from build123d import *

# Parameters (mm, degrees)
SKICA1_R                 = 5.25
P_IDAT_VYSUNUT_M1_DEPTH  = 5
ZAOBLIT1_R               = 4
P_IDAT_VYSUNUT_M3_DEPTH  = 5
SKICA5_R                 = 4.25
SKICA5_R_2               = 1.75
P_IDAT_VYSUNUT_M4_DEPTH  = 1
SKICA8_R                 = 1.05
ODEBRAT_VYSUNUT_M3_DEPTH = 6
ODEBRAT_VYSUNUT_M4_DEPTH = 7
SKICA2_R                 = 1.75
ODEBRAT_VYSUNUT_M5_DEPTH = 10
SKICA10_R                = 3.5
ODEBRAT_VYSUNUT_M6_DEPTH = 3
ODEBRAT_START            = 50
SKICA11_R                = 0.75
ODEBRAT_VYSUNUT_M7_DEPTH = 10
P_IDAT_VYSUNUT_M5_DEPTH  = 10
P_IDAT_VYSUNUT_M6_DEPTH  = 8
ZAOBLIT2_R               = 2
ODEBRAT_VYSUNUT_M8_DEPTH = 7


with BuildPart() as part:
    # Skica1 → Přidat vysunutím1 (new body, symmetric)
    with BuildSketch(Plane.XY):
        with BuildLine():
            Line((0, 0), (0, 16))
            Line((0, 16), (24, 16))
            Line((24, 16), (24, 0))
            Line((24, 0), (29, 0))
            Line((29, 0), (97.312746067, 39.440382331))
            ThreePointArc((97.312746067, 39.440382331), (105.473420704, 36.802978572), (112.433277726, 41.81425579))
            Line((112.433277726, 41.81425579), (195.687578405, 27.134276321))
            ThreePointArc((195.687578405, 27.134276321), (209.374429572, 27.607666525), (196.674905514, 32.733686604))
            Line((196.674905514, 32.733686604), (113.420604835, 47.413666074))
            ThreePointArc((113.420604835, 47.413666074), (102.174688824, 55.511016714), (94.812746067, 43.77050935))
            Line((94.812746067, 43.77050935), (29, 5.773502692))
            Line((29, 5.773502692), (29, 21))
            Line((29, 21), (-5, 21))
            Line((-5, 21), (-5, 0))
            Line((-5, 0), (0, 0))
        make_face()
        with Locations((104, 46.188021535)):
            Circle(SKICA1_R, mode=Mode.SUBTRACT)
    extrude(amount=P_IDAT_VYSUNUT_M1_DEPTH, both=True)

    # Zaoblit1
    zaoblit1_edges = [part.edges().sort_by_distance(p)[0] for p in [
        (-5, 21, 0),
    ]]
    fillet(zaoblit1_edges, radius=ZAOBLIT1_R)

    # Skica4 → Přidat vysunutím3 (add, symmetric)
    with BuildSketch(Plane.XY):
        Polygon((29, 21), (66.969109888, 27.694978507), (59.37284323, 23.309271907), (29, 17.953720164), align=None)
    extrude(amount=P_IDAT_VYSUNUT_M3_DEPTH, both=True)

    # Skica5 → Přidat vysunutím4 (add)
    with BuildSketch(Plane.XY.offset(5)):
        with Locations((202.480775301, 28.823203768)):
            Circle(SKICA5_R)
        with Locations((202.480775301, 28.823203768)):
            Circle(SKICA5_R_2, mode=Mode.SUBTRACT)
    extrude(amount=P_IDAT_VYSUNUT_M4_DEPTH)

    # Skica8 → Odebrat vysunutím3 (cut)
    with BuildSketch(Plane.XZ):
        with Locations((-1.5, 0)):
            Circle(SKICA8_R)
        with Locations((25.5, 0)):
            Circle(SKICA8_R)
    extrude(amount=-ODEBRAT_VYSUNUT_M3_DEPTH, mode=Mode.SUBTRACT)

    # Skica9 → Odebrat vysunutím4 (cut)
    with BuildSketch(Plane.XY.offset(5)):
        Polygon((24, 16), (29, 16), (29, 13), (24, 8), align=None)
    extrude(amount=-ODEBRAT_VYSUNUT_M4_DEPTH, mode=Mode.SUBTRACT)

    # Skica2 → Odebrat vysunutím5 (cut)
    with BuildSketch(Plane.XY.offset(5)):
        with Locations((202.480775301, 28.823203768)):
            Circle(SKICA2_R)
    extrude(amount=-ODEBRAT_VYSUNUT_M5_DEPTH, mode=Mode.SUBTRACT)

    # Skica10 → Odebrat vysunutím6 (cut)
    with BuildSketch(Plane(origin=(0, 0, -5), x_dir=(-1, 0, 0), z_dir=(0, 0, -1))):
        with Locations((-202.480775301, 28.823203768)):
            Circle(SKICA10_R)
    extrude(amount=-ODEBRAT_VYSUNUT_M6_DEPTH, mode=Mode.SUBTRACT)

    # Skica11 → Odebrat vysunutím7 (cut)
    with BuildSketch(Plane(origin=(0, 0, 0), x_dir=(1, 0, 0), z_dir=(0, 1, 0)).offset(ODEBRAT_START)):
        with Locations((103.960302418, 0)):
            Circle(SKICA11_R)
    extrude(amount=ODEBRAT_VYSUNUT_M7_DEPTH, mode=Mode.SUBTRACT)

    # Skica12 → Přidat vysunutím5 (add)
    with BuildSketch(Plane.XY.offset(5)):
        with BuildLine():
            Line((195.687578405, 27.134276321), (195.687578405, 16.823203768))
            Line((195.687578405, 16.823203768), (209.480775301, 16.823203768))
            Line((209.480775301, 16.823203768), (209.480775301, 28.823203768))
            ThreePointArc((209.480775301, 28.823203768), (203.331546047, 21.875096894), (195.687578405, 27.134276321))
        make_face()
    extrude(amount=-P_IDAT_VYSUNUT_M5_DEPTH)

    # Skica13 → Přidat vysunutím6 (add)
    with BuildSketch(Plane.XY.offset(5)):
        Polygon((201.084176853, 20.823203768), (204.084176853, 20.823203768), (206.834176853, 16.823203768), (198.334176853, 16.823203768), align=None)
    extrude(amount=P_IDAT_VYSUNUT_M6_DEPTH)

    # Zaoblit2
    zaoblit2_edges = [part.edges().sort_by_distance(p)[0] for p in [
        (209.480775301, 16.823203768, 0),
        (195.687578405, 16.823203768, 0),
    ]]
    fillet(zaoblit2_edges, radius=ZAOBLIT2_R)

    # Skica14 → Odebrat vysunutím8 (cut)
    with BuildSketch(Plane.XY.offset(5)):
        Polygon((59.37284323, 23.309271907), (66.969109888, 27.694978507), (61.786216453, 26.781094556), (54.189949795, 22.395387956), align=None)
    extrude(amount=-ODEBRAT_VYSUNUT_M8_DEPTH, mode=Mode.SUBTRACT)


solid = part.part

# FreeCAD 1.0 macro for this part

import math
import FreeCAD as App
import Part
import Sketcher

V = App.Vector
Q = App.Units.Quantity


def edges_at(feature, points):
    """Names of the edges that pass closest to the given points."""
    edges = feature.Shape.Edges
    near = lambda p: min(range(len(edges)), key=lambda i: edges[i].distToShape(Part.Vertex(*p))[0])
    return sorted({f"Edge{near(p) + 1}" for p in points})

doc = App.newDocument("Part")
params = doc.addObject("Spreadsheet::Sheet", "Params")
for row, (alias, value) in enumerate([
    ("sketch1_radius", "7 mm"),
    ("sketch1_diameter", "10.5 mm"),
    ("sketch1_radius2", "9.5 mm"),
    ("sketch1_width", "24 mm"),
    ("sketch1_width2", "5 mm"),
    ("pad1_length", "10 mm"),
    ("fillet_radius", "4 mm"),
    ("pad2_length", "10 mm"),
    ("sketch3_diameter", "8.5 mm"),
    ("sketch3_diameter2", "3.5 mm"),
    ("pad3_length", "1 mm"),
    ("sketch4_diameter", "2.1 mm"),
    ("pocket1_length", "6 mm"),
    ("sketch5_width", "5 mm"),
    ("sketch5_height", "8 mm"),
    ("sketch5_height2", "3 mm"),
    ("pocket2_length", "7 mm"),
    ("sketch6_diameter", "3.5 mm"),
    ("pocket3_length", "10 mm"),
    ("sketch7_diameter", "7 mm"),
    ("pocket4_length", "3 mm"),
    ("sketch8_diameter", "1.5 mm"),
    ("pocket5_length", "10 mm"),
    ("sketch9_radius", "7 mm"),
    ("sketch9_height", "12 mm"),
    ("pad4_length", "10 mm"),
    ("sketch10_width", "3 mm"),
    ("sketch10_width2", "8.5 mm"),
    ("pad5_length", "8 mm"),
    ("fillet2_radius", "2 mm"),
    ("pocket6_length", "7 mm"),
], start=1):
    params.set(f"A{row}", alias)
    params.set(f"B{row}", "=" + value)
    params.setAlias(f"B{row}", alias)

body = doc.addObject("PartDesign::Body", "Body")

sketch1 = doc.addObject("Sketcher::SketchObject", "Sketch")
body.addObject(sketch1)
sketch1.AttachmentSupport = (doc.XY_Plane, [""])
sketch1.MapMode = "FlatFace"
sketch1.addGeometry([
    Part.LineSegment(V(0, 0, 0), V(0, 16, 0)),
    Part.LineSegment(V(0, 16, 0), V(24, 16, 0)),
    Part.LineSegment(V(24, 16, 0), V(24, 0, 0)),
    Part.LineSegment(V(24, 0, 0), V(29, 0, 0)),
    Part.LineSegment(V(29, 0, 0), V(97.312746, 39.440382, 0)),
    Part.ArcOfCircle(Part.Circle(V(104, 46.188022, 0), V(0, 0, 1), 9.5), math.radians(-134.742477), math.radians(-27.412689)),
    Part.LineSegment(V(112.433278, 41.814256, 0), V(195.687578, 27.134276, 0)),
    Part.ArcOfCircle(Part.Circle(V(202.480775, 28.823204, 0), V(0, 0, 1), 7), math.radians(-166.038175), math.radians(146.038175)),
    Part.LineSegment(V(196.674906, 32.733687, 0), V(113.420605, 47.413666, 0)),
    Part.ArcOfCircle(Part.Circle(V(104, 46.188022, 0), V(0, 0, 1), 9.5), math.radians(7.412689), math.radians(194.742477)),
    Part.LineSegment(V(94.812746, 43.770509, 0), V(29, 5.773503, 0)),
    Part.LineSegment(V(29, 5.773503, 0), V(29, 21, 0)),
    Part.LineSegment(V(29, 21, 0), V(-5, 21, 0)),
    Part.LineSegment(V(-5, 21, 0), V(-5, 0, 0)),
    Part.LineSegment(V(-5, 0, 0), V(0, 0, 0)),
    Part.Circle(V(104, 46.188022, 0), V(0, 0, 1), 5.25),
], False)
sketch1.addConstraint([
    Sketcher.Constraint("Coincident", 0, 2, 1, 1),
    Sketcher.Constraint("Coincident", 1, 2, 2, 1),
    Sketcher.Constraint("Coincident", 2, 2, 3, 1),
    Sketcher.Constraint("Coincident", 3, 2, 4, 1),
    Sketcher.Constraint("Coincident", 4, 2, 5, 1),
    Sketcher.Constraint("Coincident", 5, 2, 6, 1),
    Sketcher.Constraint("Coincident", 6, 2, 7, 1),
    Sketcher.Constraint("Coincident", 7, 2, 8, 1),
    Sketcher.Constraint("Coincident", 8, 2, 9, 1),
    Sketcher.Constraint("Coincident", 9, 2, 10, 1),
    Sketcher.Constraint("Coincident", 10, 2, 11, 1),
    Sketcher.Constraint("Coincident", 11, 2, 12, 1),
    Sketcher.Constraint("Coincident", 12, 2, 13, 1),
    Sketcher.Constraint("Coincident", 13, 2, 14, 1),
    Sketcher.Constraint("Coincident", 14, 2, 0, 1),
    Sketcher.Constraint("Vertical", 0),
    Sketcher.Constraint("Horizontal", 1),
    Sketcher.Constraint("Vertical", 2),
    Sketcher.Constraint("Horizontal", 3),
    Sketcher.Constraint("Vertical", 11),
    Sketcher.Constraint("Horizontal", 12),
    Sketcher.Constraint("Vertical", 13),
    Sketcher.Constraint("Horizontal", 14),
    Sketcher.Constraint("Coincident", 14, 2, -1, 1),
    Sketcher.Constraint("Coincident", 9, 3, 5, 3),
    Sketcher.Constraint("Coincident", 15, 3, 5, 3),
    Sketcher.Constraint("Equal", 5, 9),
    Sketcher.Constraint("PointOnObject", 2, 2, -1),
    Sketcher.Constraint("Parallel", 6, 8),
    Sketcher.Constraint("Parallel", 4, 10),
    Sketcher.Constraint("Vertical", 3, 2, 10, 2),
    Sketcher.Constraint("Equal", 3, 14),
    Sketcher.Constraint("Equal", 6, 8),
    Sketcher.Constraint("Radius", 7, 7.0),
    Sketcher.Constraint("Diameter", 15, 10.5),
    Sketcher.Constraint("Radius", 5, 9.5),
    Sketcher.Constraint("DistanceX", 1, 1, 1, 2, 24.0),
    Sketcher.Constraint("DistanceX", 3, 1, 3, 2, 5.0),
    Sketcher.Constraint("DistanceY", 0, 1, 0, 2, 16.0),
    Sketcher.Constraint("DistanceY", 13, 2, 13, 1, 21.0),
    Sketcher.Constraint("Angle", 4, Q("30 deg")),
    Sketcher.Constraint("Angle", 6, Q("-10 deg")),
    Sketcher.Constraint("DistanceX", -1, 1, 5, 3, 104.0),
    Sketcher.Constraint("DistanceX", 9, 2, 4, 2, 2.5),
    Sketcher.Constraint("DistanceX", 5, 2, 6, 2, 83.254301),
    Sketcher.Constraint("DistanceY", 11, 1, 11, 2, 15.226497),
    Sketcher.Constraint("DistanceX", -1, 1, 6, 2, 195.687578),
    Sketcher.Constraint("DistanceY", 6, 2, 7, 2, 5.59941),
])
sketch1.setExpression("Constraints[33]", "Params.sketch1_radius")
sketch1.setExpression("Constraints[34]", "Params.sketch1_diameter")
sketch1.setExpression("Constraints[35]", "Params.sketch1_radius2")
sketch1.setExpression("Constraints[36]", "Params.sketch1_width")
sketch1.setExpression("Constraints[37]", "Params.sketch1_width2")
pad1 = doc.addObject("PartDesign::Pad", "Pad")
body.addObject(pad1)
pad1.Profile = sketch1
pad1.setExpression("Length", "Params.pad1_length")
pad1.Midplane = True
doc.recompute()

fillet = doc.addObject("PartDesign::Fillet", "Fillet")
body.addObject(fillet)
fillet.Base = (pad1, edges_at(pad1, [(-5, 21, 0)]))
fillet.setExpression("Radius", "Params.fillet_radius")

sketch2 = doc.addObject("Sketcher::SketchObject", "Sketch001")
body.addObject(sketch2)
sketch2.AttachmentSupport = (doc.XY_Plane, [""])
sketch2.MapMode = "FlatFace"
sketch2.addGeometry([
    Part.LineSegment(V(66.96911, 27.694979, 0), V(29, 21, 0)),
    Part.LineSegment(V(29, 21, 0), V(29, 17.95372, 0)),
    Part.LineSegment(V(29, 17.95372, 0), V(59.372843, 23.309272, 0)),
    Part.LineSegment(V(59.372843, 23.309272, 0), V(66.96911, 27.694979, 0)),
], False)
sketch2.addConstraint([
    Sketcher.Constraint("Coincident", 0, 2, 1, 1),
    Sketcher.Constraint("Coincident", 1, 2, 2, 1),
    Sketcher.Constraint("Coincident", 2, 2, 3, 1),
    Sketcher.Constraint("Coincident", 3, 2, 0, 1),
    Sketcher.Constraint("Vertical", 1),
    Sketcher.Constraint("Parallel", 0, 2),
    Sketcher.Constraint("Angle", 0, Q("-170 deg")),
    Sketcher.Constraint("Angle", 3, Q("30 deg")),
    Sketcher.Constraint("DistanceX", -1, 1, 0, 2, 29.0),
    Sketcher.Constraint("DistanceY", -1, 1, 0, 2, 21.0),
    Sketcher.Constraint("DistanceY", 1, 2, 1, 1, 3.04628),
    Sketcher.Constraint("DistanceY", -1, 1, 2, 2, 23.309272),
])
pad2 = doc.addObject("PartDesign::Pad", "Pad001")
body.addObject(pad2)
pad2.Profile = sketch2
pad2.setExpression("Length", "Params.pad2_length")
pad2.Midplane = True

sketch3 = doc.addObject("Sketcher::SketchObject", "Sketch002")
body.addObject(sketch3)
sketch3.AttachmentSupport = (doc.XY_Plane, [""])
sketch3.MapMode = "FlatFace"
sketch3.AttachmentOffset = App.Placement(V(0, 0, 5), App.Rotation())
sketch3.addGeometry([
    Part.Circle(V(202.480775, 28.823204, 0), V(0, 0, 1), 4.25),
    Part.Circle(V(202.480775, 28.823204, 0), V(0, 0, 1), 1.75),
], False)
sketch3.addConstraint([
    Sketcher.Constraint("Coincident", 1, 3, 0, 3),
    Sketcher.Constraint("Diameter", 0, 8.5),
    Sketcher.Constraint("Diameter", 1, 3.5),
    Sketcher.Constraint("DistanceX", -1, 1, 0, 3, 202.480775),
    Sketcher.Constraint("DistanceY", -1, 1, 0, 3, 28.823204),
])
sketch3.setExpression("Constraints[1]", "Params.sketch3_diameter")
sketch3.setExpression("Constraints[2]", "Params.sketch3_diameter2")
pad3 = doc.addObject("PartDesign::Pad", "Pad002")
body.addObject(pad3)
pad3.Profile = sketch3
pad3.setExpression("Length", "Params.pad3_length")

sketch4 = doc.addObject("Sketcher::SketchObject", "Sketch003")
body.addObject(sketch4)
sketch4.AttachmentSupport = (doc.XZ_Plane, [""])
sketch4.MapMode = "FlatFace"
sketch4.addGeometry([
    Part.Circle(V(-1.5, 0, 0), V(0, 0, 1), 1.05),
    Part.Circle(V(25.5, 0, 0), V(0, 0, 1), 1.05),
], False)
sketch4.addConstraint([
    Sketcher.Constraint("Equal", 0, 1),
    Sketcher.Constraint("PointOnObject", 0, 3, -1),
    Sketcher.Constraint("PointOnObject", 1, 3, -1),
    Sketcher.Constraint("Diameter", 0, 2.1),
    Sketcher.Constraint("DistanceX", 0, 3, 1, 3, 27.0),
    Sketcher.Constraint("DistanceX", 0, 3, -1, 1, 1.5),
])
sketch4.setExpression("Constraints[3]", "Params.sketch4_diameter")
pocket1 = doc.addObject("PartDesign::Pocket", "Pocket")
body.addObject(pocket1)
pocket1.Profile = sketch4
pocket1.setExpression("Length", "Params.pocket1_length")

sketch5 = doc.addObject("Sketcher::SketchObject", "Sketch004")
body.addObject(sketch5)
sketch5.AttachmentSupport = (doc.XY_Plane, [""])
sketch5.MapMode = "FlatFace"
sketch5.AttachmentOffset = App.Placement(V(0, 0, 5), App.Rotation())
sketch5.addGeometry([
    Part.LineSegment(V(29, 16, 0), V(24, 16, 0)),
    Part.LineSegment(V(24, 16, 0), V(24, 8, 0)),
    Part.LineSegment(V(24, 8, 0), V(29, 13, 0)),
    Part.LineSegment(V(29, 13, 0), V(29, 16, 0)),
], False)
sketch5.addConstraint([
    Sketcher.Constraint("Coincident", 0, 2, 1, 1),
    Sketcher.Constraint("Coincident", 1, 2, 2, 1),
    Sketcher.Constraint("Coincident", 2, 2, 3, 1),
    Sketcher.Constraint("Coincident", 3, 2, 0, 1),
    Sketcher.Constraint("Horizontal", 0),
    Sketcher.Constraint("Vertical", 1),
    Sketcher.Constraint("Vertical", 3),
    Sketcher.Constraint("DistanceX", 0, 2, 0, 1, 5.0),
    Sketcher.Constraint("DistanceY", 1, 2, 1, 1, 8.0),
    Sketcher.Constraint("DistanceY", 3, 1, 3, 2, 3.0),
    Sketcher.Constraint("DistanceX", -1, 1, 0, 2, 24.0),
    Sketcher.Constraint("DistanceY", -1, 1, 0, 2, 16.0),
])
sketch5.setExpression("Constraints[7]", "Params.sketch5_width")
sketch5.setExpression("Constraints[8]", "Params.sketch5_height")
sketch5.setExpression("Constraints[9]", "Params.sketch5_height2")
pocket2 = doc.addObject("PartDesign::Pocket", "Pocket001")
body.addObject(pocket2)
pocket2.Profile = sketch5
pocket2.setExpression("Length", "Params.pocket2_length")

sketch6 = doc.addObject("Sketcher::SketchObject", "Sketch005")
body.addObject(sketch6)
sketch6.AttachmentSupport = (doc.XY_Plane, [""])
sketch6.MapMode = "FlatFace"
sketch6.AttachmentOffset = App.Placement(V(0, 0, 5), App.Rotation())
sketch6.addGeometry(Part.Circle(V(202.480775, 28.823204, 0), V(0, 0, 1), 1.75), False)
sketch6.addConstraint([
    Sketcher.Constraint("Diameter", 0, 3.5),
    Sketcher.Constraint("DistanceX", -1, 1, 0, 3, 202.480775),
    Sketcher.Constraint("DistanceY", -1, 1, 0, 3, 28.823204),
])
sketch6.setExpression("Constraints[0]", "Params.sketch6_diameter")
pocket3 = doc.addObject("PartDesign::Pocket", "Pocket002")
body.addObject(pocket3)
pocket3.Profile = sketch6
pocket3.setExpression("Length", "Params.pocket3_length")

sketch7 = doc.addObject("Sketcher::SketchObject", "Sketch006")
body.addObject(sketch7)
sketch7.AttachmentSupport = (doc.XY_Plane, [""])
sketch7.MapMode = "FlatFace"
sketch7.AttachmentOffset = App.Placement(V(0, 0, -5), App.Rotation())
sketch7.addGeometry(Part.Circle(V(202.480775, 28.823204, 0), V(0, 0, 1), 3.5), False)
sketch7.addConstraint([
    Sketcher.Constraint("Diameter", 0, 7.0),
    Sketcher.Constraint("DistanceX", -1, 1, 0, 3, 202.480775),
    Sketcher.Constraint("DistanceY", -1, 1, 0, 3, 28.823204),
])
sketch7.setExpression("Constraints[0]", "Params.sketch7_diameter")
pocket4 = doc.addObject("PartDesign::Pocket", "Pocket003")
body.addObject(pocket4)
pocket4.Profile = sketch7
pocket4.setExpression("Length", "Params.pocket4_length")
pocket4.Reversed = True

sketch8 = doc.addObject("Sketcher::SketchObject", "Sketch007")
body.addObject(sketch8)
sketch8.AttachmentSupport = (doc.XZ_Plane, [""])
sketch8.MapMode = "FlatFace"
sketch8.AttachmentOffset = App.Placement(V(0, 0, -50), App.Rotation())
sketch8.addGeometry(Part.Circle(V(103.960302, 0, 0), V(0, 0, 1), 0.75), False)
sketch8.addConstraint([
    Sketcher.Constraint("PointOnObject", 0, 3, -1),
    Sketcher.Constraint("Diameter", 0, 1.5),
    Sketcher.Constraint("DistanceX", -1, 1, 0, 3, 103.960302),
])
sketch8.setExpression("Constraints[1]", "Params.sketch8_diameter")
pocket5 = doc.addObject("PartDesign::Pocket", "Pocket004")
body.addObject(pocket5)
pocket5.Profile = sketch8
pocket5.setExpression("Length", "Params.pocket5_length")

sketch9 = doc.addObject("Sketcher::SketchObject", "Sketch008")
body.addObject(sketch9)
sketch9.AttachmentSupport = (doc.XY_Plane, [""])
sketch9.MapMode = "FlatFace"
sketch9.AttachmentOffset = App.Placement(V(0, 0, 5), App.Rotation())
sketch9.addGeometry([
    Part.LineSegment(V(195.687578, 27.134276, 0), V(195.687578, 16.823204, 0)),
    Part.LineSegment(V(195.687578, 16.823204, 0), V(209.480775, 16.823204, 0)),
    Part.LineSegment(V(209.480775, 16.823204, 0), V(209.480775, 28.823204, 0)),
    Part.ArcOfCircle(Part.Circle(V(202.480775, 28.823204, 0), V(0, 0, 1), 7), math.radians(-166.038175), math.radians(0)),
], False)
sketch9.addConstraint([
    Sketcher.Constraint("Coincident", 0, 2, 1, 1),
    Sketcher.Constraint("Coincident", 1, 2, 2, 1),
    Sketcher.Constraint("Tangent", 2, 2, 3, 2),
    Sketcher.Constraint("Coincident", 3, 1, 0, 1),
    Sketcher.Constraint("Vertical", 0),
    Sketcher.Constraint("Horizontal", 1),
    Sketcher.Constraint("Vertical", 2),
    Sketcher.Constraint("Radius", 3, 7.0),
    Sketcher.Constraint("DistanceY", 2, 1, 2, 2, 12.0),
    Sketcher.Constraint("DistanceX", 1, 1, 1, 2, 13.793197),
    Sketcher.Constraint("DistanceX", -1, 1, 0, 2, 195.687578),
    Sketcher.Constraint("DistanceY", -1, 1, 3, 3, 28.823204),
])
sketch9.setExpression("Constraints[7]", "Params.sketch9_radius")
sketch9.setExpression("Constraints[8]", "Params.sketch9_height")
pad4 = doc.addObject("PartDesign::Pad", "Pad003")
body.addObject(pad4)
pad4.Profile = sketch9
pad4.setExpression("Length", "Params.pad4_length")
pad4.Reversed = True

sketch10 = doc.addObject("Sketcher::SketchObject", "Sketch009")
body.addObject(sketch10)
sketch10.AttachmentSupport = (doc.XY_Plane, [""])
sketch10.MapMode = "FlatFace"
sketch10.AttachmentOffset = App.Placement(V(0, 0, 5), App.Rotation())
sketch10.addGeometry([
    Part.LineSegment(V(204.084177, 20.823204, 0), V(201.084177, 20.823204, 0)),
    Part.LineSegment(V(201.084177, 20.823204, 0), V(198.334177, 16.823204, 0)),
    Part.LineSegment(V(198.334177, 16.823204, 0), V(206.834177, 16.823204, 0)),
    Part.LineSegment(V(206.834177, 16.823204, 0), V(204.084177, 20.823204, 0)),
], False)
sketch10.addConstraint([
    Sketcher.Constraint("Coincident", 0, 2, 1, 1),
    Sketcher.Constraint("Coincident", 1, 2, 2, 1),
    Sketcher.Constraint("Coincident", 2, 2, 3, 1),
    Sketcher.Constraint("Coincident", 3, 2, 0, 1),
    Sketcher.Constraint("Horizontal", 0),
    Sketcher.Constraint("Horizontal", 2),
    Sketcher.Constraint("Equal", 1, 3),
    Sketcher.Constraint("DistanceX", 0, 2, 0, 1, 3.0),
    Sketcher.Constraint("DistanceX", 2, 1, 2, 2, 8.5),
    Sketcher.Constraint("DistanceY", 1, 2, 0, 2, 4.0),
    Sketcher.Constraint("DistanceX", -1, 1, 0, 2, 201.084177),
    Sketcher.Constraint("DistanceY", -1, 1, 0, 2, 20.823204),
])
sketch10.setExpression("Constraints[7]", "Params.sketch10_width")
sketch10.setExpression("Constraints[8]", "Params.sketch10_width2")
pad5 = doc.addObject("PartDesign::Pad", "Pad004")
body.addObject(pad5)
pad5.Profile = sketch10
pad5.setExpression("Length", "Params.pad5_length")
doc.recompute()

fillet2 = doc.addObject("PartDesign::Fillet", "Fillet001")
body.addObject(fillet2)
fillet2.Base = (pad5, edges_at(pad5, [(209.481, 16.823, 0), (195.688, 16.823, 0)]))
fillet2.setExpression("Radius", "Params.fillet2_radius")

sketch11 = doc.addObject("Sketcher::SketchObject", "Sketch010")
body.addObject(sketch11)
sketch11.AttachmentSupport = (doc.XY_Plane, [""])
sketch11.MapMode = "FlatFace"
sketch11.AttachmentOffset = App.Placement(V(0, 0, 5), App.Rotation())
sketch11.addGeometry([
    Part.LineSegment(V(59.372843, 23.309272, 0), V(66.96911, 27.694979, 0)),
    Part.LineSegment(V(66.96911, 27.694979, 0), V(61.786216, 26.781095, 0)),
    Part.LineSegment(V(61.786216, 26.781095, 0), V(54.18995, 22.395388, 0)),
    Part.LineSegment(V(54.18995, 22.395388, 0), V(59.372843, 23.309272, 0)),
], False)
sketch11.addConstraint([
    Sketcher.Constraint("Coincident", 0, 2, 1, 1),
    Sketcher.Constraint("Coincident", 1, 2, 2, 1),
    Sketcher.Constraint("Coincident", 2, 2, 3, 1),
    Sketcher.Constraint("Coincident", 3, 2, 0, 1),
    Sketcher.Constraint("Parallel", 0, 2),
    Sketcher.Constraint("Parallel", 1, 3),
    Sketcher.Constraint("Angle", 0, Q("30 deg")),
    Sketcher.Constraint("Angle", 1, Q("-170 deg")),
    Sketcher.Constraint("DistanceX", -1, 1, 0, 2, 66.96911),
    Sketcher.Constraint("DistanceY", -1, 1, 0, 2, 27.694979),
    Sketcher.Constraint("DistanceX", -1, 1, 2, 2, 54.18995),
    Sketcher.Constraint("DistanceY", -1, 1, 3, 2, 23.309272),
])
pocket6 = doc.addObject("PartDesign::Pocket", "Pocket005")
body.addObject(pocket6)
pocket6.Profile = sketch11
pocket6.setExpression("Length", "Params.pocket6_length")

doc.recompute()
